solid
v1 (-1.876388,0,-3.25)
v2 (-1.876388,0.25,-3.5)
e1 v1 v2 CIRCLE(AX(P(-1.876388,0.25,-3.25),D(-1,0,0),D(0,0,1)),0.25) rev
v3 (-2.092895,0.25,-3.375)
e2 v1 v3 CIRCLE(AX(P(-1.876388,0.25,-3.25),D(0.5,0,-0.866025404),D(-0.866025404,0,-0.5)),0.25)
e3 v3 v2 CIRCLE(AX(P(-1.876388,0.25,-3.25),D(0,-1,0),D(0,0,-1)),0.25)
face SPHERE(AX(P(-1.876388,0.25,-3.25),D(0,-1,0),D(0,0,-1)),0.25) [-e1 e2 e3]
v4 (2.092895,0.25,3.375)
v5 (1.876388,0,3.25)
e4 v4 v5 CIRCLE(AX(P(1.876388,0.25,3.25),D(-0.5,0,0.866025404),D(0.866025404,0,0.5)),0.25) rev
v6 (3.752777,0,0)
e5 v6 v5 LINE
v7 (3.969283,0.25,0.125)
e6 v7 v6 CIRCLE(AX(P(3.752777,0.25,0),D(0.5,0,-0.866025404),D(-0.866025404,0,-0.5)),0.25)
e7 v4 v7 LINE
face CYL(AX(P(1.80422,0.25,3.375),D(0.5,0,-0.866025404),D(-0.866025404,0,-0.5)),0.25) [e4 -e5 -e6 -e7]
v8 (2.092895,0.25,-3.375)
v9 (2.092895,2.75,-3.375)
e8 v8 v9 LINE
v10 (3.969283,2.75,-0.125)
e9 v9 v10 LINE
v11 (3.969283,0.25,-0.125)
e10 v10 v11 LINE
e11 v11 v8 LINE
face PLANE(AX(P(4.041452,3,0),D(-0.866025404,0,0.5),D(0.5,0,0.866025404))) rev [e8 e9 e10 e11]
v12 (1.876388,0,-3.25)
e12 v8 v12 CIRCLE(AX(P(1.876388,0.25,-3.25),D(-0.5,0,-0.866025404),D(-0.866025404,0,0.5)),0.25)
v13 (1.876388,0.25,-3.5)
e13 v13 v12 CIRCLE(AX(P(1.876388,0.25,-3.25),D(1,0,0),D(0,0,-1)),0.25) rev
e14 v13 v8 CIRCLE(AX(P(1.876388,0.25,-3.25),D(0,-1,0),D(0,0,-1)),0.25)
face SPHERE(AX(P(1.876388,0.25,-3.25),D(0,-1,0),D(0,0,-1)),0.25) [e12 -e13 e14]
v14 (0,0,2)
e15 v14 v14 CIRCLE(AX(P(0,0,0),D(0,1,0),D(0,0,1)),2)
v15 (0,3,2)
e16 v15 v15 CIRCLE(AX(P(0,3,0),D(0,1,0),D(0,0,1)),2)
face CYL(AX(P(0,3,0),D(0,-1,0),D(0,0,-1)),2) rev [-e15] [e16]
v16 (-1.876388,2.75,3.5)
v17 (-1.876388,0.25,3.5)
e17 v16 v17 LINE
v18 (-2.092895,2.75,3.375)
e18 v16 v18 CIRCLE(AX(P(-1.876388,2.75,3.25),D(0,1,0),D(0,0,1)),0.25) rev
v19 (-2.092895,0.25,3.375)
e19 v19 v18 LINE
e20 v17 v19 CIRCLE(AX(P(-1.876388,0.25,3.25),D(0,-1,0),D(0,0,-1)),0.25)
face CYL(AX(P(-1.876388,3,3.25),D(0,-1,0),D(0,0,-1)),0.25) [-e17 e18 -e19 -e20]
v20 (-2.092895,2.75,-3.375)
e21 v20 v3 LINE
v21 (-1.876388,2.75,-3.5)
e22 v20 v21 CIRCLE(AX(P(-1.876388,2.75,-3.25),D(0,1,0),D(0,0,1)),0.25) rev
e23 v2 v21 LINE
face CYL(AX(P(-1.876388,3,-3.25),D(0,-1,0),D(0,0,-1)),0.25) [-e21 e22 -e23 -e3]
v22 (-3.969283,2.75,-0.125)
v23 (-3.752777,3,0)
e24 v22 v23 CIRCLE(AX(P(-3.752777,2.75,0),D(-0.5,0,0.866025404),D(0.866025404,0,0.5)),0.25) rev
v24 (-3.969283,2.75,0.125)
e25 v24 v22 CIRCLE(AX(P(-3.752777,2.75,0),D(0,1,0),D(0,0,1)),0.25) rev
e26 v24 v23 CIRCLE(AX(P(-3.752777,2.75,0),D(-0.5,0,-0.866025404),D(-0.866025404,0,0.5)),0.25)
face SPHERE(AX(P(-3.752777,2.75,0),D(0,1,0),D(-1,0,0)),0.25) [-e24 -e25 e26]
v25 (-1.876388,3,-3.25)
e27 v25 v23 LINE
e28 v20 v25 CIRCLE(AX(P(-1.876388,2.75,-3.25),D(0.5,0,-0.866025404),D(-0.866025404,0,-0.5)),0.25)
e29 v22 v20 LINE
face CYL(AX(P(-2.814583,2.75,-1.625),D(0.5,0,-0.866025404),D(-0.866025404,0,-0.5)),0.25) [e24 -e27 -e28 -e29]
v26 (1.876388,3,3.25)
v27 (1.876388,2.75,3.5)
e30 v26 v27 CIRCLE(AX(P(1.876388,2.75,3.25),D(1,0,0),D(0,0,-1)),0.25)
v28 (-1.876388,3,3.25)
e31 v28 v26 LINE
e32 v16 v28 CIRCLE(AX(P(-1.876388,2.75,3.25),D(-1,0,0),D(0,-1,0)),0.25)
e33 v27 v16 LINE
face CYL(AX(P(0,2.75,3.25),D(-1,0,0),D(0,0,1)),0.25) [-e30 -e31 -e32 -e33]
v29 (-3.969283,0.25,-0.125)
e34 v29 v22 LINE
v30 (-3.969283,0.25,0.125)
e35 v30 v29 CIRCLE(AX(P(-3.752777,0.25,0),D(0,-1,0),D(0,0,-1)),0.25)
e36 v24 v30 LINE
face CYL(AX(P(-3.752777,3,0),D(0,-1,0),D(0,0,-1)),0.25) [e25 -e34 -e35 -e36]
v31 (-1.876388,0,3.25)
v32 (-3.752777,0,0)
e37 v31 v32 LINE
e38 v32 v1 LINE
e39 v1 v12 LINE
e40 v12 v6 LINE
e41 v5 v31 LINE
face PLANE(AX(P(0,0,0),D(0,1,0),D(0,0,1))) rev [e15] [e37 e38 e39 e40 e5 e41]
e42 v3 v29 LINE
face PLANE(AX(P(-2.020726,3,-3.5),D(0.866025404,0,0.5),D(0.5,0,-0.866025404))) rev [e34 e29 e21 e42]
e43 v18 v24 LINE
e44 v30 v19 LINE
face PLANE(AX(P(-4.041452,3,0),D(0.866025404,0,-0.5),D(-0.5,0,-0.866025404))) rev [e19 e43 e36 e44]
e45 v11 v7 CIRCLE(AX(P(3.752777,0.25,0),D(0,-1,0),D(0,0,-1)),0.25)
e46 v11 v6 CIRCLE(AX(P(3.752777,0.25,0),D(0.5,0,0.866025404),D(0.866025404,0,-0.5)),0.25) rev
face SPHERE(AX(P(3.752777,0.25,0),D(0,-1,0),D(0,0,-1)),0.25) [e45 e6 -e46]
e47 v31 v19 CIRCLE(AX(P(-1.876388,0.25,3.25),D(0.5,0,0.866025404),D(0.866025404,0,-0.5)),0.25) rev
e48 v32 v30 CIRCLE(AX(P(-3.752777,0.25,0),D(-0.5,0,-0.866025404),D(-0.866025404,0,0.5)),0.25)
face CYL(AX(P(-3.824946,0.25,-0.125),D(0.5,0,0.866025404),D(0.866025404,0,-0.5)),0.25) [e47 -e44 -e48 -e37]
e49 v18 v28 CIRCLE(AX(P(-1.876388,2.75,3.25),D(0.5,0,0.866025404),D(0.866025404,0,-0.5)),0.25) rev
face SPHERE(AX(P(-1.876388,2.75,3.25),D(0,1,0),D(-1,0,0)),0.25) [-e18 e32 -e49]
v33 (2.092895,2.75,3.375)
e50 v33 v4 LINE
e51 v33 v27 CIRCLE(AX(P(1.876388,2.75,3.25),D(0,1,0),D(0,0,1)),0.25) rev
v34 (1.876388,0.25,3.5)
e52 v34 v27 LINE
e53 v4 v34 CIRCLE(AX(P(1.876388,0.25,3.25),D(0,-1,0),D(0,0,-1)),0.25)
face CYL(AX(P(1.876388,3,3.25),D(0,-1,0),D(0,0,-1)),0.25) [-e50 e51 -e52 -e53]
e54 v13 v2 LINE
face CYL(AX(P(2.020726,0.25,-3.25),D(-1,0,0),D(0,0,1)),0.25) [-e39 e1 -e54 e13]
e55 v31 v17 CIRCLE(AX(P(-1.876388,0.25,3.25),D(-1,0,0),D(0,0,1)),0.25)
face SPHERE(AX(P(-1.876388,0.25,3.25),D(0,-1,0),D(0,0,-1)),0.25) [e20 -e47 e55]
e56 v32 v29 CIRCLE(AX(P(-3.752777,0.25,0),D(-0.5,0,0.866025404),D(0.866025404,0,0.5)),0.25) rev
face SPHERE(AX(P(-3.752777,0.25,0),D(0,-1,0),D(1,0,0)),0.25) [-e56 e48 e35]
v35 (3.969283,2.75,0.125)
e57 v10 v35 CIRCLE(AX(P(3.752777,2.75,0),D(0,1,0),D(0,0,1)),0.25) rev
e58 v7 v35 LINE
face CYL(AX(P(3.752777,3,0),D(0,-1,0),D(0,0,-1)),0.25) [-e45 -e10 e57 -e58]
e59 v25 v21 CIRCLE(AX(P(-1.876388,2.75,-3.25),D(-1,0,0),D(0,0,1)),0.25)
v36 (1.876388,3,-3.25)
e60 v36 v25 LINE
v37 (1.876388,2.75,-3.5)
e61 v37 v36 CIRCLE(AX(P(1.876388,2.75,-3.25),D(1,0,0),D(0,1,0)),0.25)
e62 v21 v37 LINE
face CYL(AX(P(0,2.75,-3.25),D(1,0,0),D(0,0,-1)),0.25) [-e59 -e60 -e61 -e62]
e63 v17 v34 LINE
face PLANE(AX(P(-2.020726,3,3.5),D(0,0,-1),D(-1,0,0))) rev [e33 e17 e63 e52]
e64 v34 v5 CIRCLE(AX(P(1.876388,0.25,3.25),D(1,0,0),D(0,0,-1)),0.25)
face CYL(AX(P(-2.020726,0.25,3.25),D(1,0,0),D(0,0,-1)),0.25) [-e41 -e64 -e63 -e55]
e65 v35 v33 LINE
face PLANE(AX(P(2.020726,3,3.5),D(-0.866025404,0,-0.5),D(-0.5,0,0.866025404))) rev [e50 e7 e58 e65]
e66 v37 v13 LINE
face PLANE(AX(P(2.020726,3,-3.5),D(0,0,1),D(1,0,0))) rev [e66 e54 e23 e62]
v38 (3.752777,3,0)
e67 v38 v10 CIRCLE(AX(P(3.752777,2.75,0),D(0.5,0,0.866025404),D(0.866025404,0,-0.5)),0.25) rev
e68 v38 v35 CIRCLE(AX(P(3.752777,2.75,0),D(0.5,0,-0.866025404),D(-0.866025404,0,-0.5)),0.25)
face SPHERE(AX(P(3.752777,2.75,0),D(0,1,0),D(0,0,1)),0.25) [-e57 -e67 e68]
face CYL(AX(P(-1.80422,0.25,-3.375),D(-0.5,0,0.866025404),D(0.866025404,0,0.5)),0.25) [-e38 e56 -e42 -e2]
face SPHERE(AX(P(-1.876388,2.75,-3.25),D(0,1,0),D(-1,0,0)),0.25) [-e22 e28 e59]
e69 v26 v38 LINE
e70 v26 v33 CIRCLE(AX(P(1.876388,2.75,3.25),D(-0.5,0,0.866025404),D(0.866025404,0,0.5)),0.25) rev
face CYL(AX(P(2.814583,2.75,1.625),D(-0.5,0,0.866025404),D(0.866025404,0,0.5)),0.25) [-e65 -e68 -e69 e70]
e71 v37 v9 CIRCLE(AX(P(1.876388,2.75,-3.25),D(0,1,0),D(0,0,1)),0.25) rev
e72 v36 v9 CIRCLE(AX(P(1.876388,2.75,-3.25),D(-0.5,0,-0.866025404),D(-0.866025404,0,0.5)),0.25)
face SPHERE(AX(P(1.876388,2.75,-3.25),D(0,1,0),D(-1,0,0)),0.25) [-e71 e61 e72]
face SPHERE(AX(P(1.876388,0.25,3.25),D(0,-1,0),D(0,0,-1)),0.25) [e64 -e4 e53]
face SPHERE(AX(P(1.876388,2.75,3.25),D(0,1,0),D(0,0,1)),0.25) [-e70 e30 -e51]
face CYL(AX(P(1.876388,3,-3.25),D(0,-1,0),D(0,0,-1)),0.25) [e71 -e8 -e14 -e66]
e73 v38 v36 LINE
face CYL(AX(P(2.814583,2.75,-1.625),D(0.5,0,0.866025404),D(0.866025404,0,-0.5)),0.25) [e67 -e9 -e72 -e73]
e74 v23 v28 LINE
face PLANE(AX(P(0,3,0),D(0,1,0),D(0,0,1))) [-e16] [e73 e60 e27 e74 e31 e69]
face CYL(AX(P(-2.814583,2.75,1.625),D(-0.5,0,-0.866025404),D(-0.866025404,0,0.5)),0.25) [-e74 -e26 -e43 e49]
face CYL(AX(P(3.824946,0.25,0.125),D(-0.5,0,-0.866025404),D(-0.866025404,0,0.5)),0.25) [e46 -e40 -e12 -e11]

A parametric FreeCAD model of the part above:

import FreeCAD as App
import Part
import Sketcher

V = App.Vector
Q = App.Units.Quantity


def edges_at(feature, points):
    """Names of the edges that pass closest to the given points."""
    edges = feature.Shape.Edges
    near = lambda p: min(range(len(edges)), key=lambda i: edges[i].distToShape(Part.Vertex(*p))[0])
    return sorted({f"Edge{near(p) + 1}" for p in points})

doc = App.newDocument("Part")
body = doc.addObject("PartDesign::Body", "Body")

# Sketch on XZ plane
sketch1 = body.newObject("Sketcher::SketchObject", "Sketch")
sketch1.AttachmentSupport = (doc.getObject("XZ_Plane"), [""])
sketch1.MapMode = "FlatFace"
sketch1.addGeometry([
    Part.LineSegment(V(-2, -3.5, 0), V(-4, 0, 0)),  # 0
    Part.LineSegment(V(-4, 0, 0), V(-2, 3.5, 0)),  # 1
    Part.LineSegment(V(-2, 3.5, 0), V(2, 3.5, 0)),  # 2
    Part.LineSegment(V(2, 3.5, 0), V(4, 0, 0)),  # 3
    Part.LineSegment(V(4, 0, 0), V(2, -3.5, 0)),  # 4
    Part.LineSegment(V(2, -3.5, 0), V(-2, -3.5, 0)),  # 5
    Part.Circle(V(0, 0, 0), V(0, 0, 1), 2),  # 6
], False)
sketch1.addConstraint([
    Sketcher.Constraint("Coincident", 0, 2, 1, 1),
    Sketcher.Constraint("Coincident", 1, 2, 2, 1),
    Sketcher.Constraint("Coincident", 2, 2, 3, 1),
    Sketcher.Constraint("Coincident", 3, 2, 4, 1),
    Sketcher.Constraint("Coincident", 4, 2, 5, 1),
    Sketcher.Constraint("Coincident", 5, 2, 0, 1),
    Sketcher.Constraint("Horizontal", 2),
    Sketcher.Constraint("Horizontal", 5),
    Sketcher.Constraint("Coincident", 6, 3, -1, 1),
    Sketcher.Constraint("Symmetric", 0, 2, 3, 2, -1, 1),
    Sketcher.Constraint("Symmetric", 1, 2, 4, 2, -1, 1),
    Sketcher.Constraint("PointOnObject", 0, 2, -1),
    Sketcher.Constraint("Parallel", 0, 3),
    Sketcher.Constraint("Vertical", 2, 2, 4, 2),
    Sketcher.Constraint("Diameter", 6, Q("4 mm")),
    Sketcher.Constraint("Angle", 0, Q("120 deg")),
    Sketcher.Constraint("DistanceY", 4, 2, 2, 2, Q("7 mm")),
    Sketcher.Constraint("DistanceX", 2, 1, 2, 2, Q("4.041452 mm")),
])
pad1 = body.newObject("PartDesign::Pad", "Pad")
pad1.Profile = sketch1
pad1.Length = 3
pad1.Reversed = True
doc.recompute()

fillet = body.newObject("PartDesign::Fillet", "Fillet")
fillet.Base = (pad1, edges_at(pad1, [
    (2.021, 1.5, -3.5),
    (4.041, 1.5, 0),
    (2.021, 1.5, 3.5),
    (-2.021, 1.5, 3.5),
    (-4.041, 1.5, 0),
    (-2.021, 1.5, -3.5),
    (-3.031, 3, 1.75),
    (0, 3, 3.5),
    (3.031, 3, 1.75),
    (3.031, 3, -1.75),
    (0, 3, -3.5),
    (3.031, 0, -1.75),
    (3.031, 0, 1.75),
    (0, 0, 3.5),
    (-3.031, 0, 1.75),
    (-3.031, 0, -1.75),
    (0, 0, -3.5),
    (-3.031, 3, -1.75),
]))
fillet.Radius = 0.25

doc.recompute()
